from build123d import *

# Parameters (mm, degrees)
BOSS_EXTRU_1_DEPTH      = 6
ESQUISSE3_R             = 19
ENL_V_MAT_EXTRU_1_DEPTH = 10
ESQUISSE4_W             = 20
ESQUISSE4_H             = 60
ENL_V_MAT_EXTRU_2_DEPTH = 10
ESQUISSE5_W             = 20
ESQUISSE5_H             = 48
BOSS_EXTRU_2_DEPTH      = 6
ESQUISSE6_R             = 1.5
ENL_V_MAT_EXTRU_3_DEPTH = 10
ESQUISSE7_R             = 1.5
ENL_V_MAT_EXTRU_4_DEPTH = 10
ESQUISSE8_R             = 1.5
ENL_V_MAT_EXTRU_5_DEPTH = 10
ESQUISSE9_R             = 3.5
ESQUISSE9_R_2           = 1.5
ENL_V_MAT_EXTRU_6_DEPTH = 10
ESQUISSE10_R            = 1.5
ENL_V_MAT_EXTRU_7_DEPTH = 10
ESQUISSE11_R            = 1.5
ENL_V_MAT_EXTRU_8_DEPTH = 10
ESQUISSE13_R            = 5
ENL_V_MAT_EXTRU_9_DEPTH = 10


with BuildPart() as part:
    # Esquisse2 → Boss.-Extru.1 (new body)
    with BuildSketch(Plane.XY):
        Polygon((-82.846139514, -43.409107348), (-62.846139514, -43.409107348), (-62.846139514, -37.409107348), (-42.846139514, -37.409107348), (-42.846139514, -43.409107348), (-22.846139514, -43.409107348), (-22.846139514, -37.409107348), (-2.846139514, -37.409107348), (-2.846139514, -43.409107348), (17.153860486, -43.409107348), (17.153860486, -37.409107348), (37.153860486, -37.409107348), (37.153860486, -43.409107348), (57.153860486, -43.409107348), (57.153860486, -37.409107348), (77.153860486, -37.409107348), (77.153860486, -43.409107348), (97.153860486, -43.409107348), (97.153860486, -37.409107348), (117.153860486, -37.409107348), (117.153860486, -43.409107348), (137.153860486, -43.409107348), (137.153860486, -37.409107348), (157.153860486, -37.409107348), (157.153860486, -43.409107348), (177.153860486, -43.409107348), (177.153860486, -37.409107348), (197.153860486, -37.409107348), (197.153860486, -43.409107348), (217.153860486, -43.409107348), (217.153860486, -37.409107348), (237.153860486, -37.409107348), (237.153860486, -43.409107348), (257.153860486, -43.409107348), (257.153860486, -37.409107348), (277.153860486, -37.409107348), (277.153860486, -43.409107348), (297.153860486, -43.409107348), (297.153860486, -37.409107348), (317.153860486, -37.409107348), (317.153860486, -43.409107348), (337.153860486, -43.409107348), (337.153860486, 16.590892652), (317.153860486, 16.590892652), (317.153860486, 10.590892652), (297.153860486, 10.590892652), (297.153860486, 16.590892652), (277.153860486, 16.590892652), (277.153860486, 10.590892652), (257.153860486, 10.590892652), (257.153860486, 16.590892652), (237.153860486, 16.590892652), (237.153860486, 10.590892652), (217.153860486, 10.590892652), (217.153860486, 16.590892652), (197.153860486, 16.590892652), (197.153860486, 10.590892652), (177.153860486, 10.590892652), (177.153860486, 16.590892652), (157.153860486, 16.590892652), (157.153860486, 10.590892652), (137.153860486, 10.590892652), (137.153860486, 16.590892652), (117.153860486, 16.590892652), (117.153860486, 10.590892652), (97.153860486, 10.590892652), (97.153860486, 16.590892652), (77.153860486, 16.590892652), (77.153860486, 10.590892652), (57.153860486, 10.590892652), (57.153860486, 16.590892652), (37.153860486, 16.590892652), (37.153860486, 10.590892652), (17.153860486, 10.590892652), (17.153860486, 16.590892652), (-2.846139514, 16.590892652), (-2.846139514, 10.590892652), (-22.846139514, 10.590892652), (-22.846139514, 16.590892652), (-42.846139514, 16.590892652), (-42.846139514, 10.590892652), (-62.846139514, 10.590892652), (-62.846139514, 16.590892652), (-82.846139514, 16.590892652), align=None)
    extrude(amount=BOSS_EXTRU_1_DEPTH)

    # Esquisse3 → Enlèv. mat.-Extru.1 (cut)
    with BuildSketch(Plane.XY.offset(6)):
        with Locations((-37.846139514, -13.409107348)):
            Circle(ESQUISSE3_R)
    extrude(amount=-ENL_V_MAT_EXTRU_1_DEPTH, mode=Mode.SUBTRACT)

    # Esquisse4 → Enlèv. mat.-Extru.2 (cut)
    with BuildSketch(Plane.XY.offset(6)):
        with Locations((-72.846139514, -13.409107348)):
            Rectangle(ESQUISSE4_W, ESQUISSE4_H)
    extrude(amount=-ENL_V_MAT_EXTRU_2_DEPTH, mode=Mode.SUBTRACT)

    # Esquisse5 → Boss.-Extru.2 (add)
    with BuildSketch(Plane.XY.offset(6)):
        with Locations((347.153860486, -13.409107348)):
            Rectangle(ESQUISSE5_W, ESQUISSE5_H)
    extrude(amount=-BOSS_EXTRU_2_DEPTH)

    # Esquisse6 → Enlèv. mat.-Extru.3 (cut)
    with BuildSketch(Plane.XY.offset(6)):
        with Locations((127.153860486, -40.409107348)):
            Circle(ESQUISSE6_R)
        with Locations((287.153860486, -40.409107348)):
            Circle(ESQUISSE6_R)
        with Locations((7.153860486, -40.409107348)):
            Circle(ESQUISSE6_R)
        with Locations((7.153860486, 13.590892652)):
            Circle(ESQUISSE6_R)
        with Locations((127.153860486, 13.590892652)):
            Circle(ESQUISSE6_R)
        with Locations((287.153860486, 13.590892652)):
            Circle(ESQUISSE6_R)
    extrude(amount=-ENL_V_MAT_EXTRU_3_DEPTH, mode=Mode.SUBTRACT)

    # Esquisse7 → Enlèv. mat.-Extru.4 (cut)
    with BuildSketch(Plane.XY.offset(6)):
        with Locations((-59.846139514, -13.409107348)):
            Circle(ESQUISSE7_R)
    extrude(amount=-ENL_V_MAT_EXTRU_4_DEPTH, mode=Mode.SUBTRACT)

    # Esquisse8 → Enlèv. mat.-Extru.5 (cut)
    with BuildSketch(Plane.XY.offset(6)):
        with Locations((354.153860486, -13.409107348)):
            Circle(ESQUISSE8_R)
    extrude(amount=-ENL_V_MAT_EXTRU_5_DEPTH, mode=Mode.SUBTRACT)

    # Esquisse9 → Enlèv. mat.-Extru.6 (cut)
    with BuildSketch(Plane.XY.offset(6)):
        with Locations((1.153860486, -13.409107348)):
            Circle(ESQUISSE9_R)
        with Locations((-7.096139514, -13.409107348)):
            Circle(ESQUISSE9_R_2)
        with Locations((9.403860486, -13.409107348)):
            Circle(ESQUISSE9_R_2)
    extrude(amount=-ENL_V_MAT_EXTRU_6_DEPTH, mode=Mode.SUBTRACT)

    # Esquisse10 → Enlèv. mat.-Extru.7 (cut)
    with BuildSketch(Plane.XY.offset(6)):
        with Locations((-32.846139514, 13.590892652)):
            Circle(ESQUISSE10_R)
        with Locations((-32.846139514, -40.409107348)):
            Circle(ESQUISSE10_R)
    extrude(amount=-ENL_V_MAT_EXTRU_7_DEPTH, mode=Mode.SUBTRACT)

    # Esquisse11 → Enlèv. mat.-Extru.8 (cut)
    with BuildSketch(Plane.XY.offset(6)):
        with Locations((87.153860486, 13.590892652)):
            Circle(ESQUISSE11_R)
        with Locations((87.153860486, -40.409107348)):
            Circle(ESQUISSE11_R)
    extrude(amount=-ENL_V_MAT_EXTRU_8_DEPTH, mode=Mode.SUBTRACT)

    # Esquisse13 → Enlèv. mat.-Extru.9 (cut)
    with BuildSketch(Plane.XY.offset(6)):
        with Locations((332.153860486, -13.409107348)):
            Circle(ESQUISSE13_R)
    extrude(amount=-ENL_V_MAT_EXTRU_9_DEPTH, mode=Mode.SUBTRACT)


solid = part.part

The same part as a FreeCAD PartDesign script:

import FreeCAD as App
import Part
import Sketcher
from FreeCAD import Vector

doc = App.newDocument("Part")
body = doc.addObject("PartDesign::Body", "Body")

sketch1 = doc.addObject("Sketcher::SketchObject", "Sketch")
body.addObject(sketch1)
sketch1.AttachmentSupport = (doc.XY_Plane, [""])
sketch1.MapMode = "FlatFace"
sketch1.addGeometry([
    Part.LineSegment(Vector(-82.84614, -43.409107, 0), Vector(-62.84614, -43.409107, 0)),
    Part.LineSegment(Vector(-62.84614, -43.409107, 0), Vector(-62.84614, -37.409107, 0)),
    Part.LineSegment(Vector(-62.84614, -37.409107, 0), Vector(-42.84614, -37.409107, 0)),
    Part.LineSegment(Vector(-42.84614, -37.409107, 0), Vector(-42.84614, -43.409107, 0)),
    Part.LineSegment(Vector(-42.84614, -43.409107, 0), Vector(-22.84614, -43.409107, 0)),
    Part.LineSegment(Vector(-22.84614, -43.409107, 0), Vector(-22.84614, -37.409107, 0)),
    Part.LineSegment(Vector(-22.84614, -37.409107, 0), Vector(-2.84614, -37.409107, 0)),
    Part.LineSegment(Vector(-2.84614, -37.409107, 0), Vector(-2.84614, -43.409107, 0)),
    Part.LineSegment(Vector(-2.84614, -43.409107, 0), Vector(17.15386, -43.409107, 0)),
    Part.LineSegment(Vector(17.15386, -43.409107, 0), Vector(17.15386, -37.409107, 0)),
    Part.LineSegment(Vector(17.15386, -37.409107, 0), Vector(37.15386, -37.409107, 0)),
    Part.LineSegment(Vector(37.15386, -37.409107, 0), Vector(37.15386, -43.409107, 0)),
    Part.LineSegment(Vector(37.15386, -43.409107, 0), Vector(57.15386, -43.409107, 0)),
    Part.LineSegment(Vector(57.15386, -43.409107, 0), Vector(57.15386, -37.409107, 0)),
    Part.LineSegment(Vector(57.15386, -37.409107, 0), Vector(77.15386, -37.409107, 0)),
    Part.LineSegment(Vector(77.15386, -37.409107, 0), Vector(77.15386, -43.409107, 0)),
    Part.LineSegment(Vector(77.15386, -43.409107, 0), Vector(97.15386, -43.409107, 0)),
    Part.LineSegment(Vector(97.15386, -43.409107, 0), Vector(97.15386, -37.409107, 0)),
    Part.LineSegment(Vector(97.15386, -37.409107, 0), Vector(117.15386, -37.409107, 0)),
    Part.LineSegment(Vector(117.15386, -37.409107, 0), Vector(117.15386, -43.409107, 0)),
    Part.LineSegment(Vector(117.15386, -43.409107, 0), Vector(137.15386, -43.409107, 0)),
    Part.LineSegment(Vector(137.15386, -43.409107, 0), Vector(137.15386, -37.409107, 0)),
    Part.LineSegment(Vector(137.15386, -37.409107, 0), Vector(157.15386, -37.409107, 0)),
    Part.LineSegment(Vector(157.15386, -37.409107, 0), Vector(157.15386, -43.409107, 0)),
    Part.LineSegment(Vector(157.15386, -43.409107, 0), Vector(177.15386, -43.409107, 0)),
    Part.LineSegment(Vector(177.15386, -43.409107, 0), Vector(177.15386, -37.409107, 0)),
    Part.LineSegment(Vector(177.15386, -37.409107, 0), Vector(197.15386, -37.409107, 0)),
    Part.LineSegment(Vector(197.15386, -37.409107, 0), Vector(197.15386, -43.409107, 0)),
    Part.LineSegment(Vector(197.15386, -43.409107, 0), Vector(217.15386, -43.409107, 0)),
    Part.LineSegment(Vector(217.15386, -43.409107, 0), Vector(217.15386, -37.409107, 0)),
    Part.LineSegment(Vector(217.15386, -37.409107, 0), Vector(237.15386, -37.409107, 0)),
    Part.LineSegment(Vector(237.15386, -37.409107, 0), Vector(237.15386, -43.409107, 0)),
    Part.LineSegment(Vector(237.15386, -43.409107, 0), Vector(257.15386, -43.409107, 0)),
    Part.LineSegment(Vector(257.15386, -43.409107, 0), Vector(257.15386, -37.409107, 0)),
    Part.LineSegment(Vector(257.15386, -37.409107, 0), Vector(277.15386, -37.409107, 0)),
    Part.LineSegment(Vector(277.15386, -37.409107, 0), Vector(277.15386, -43.409107, 0)),
    Part.LineSegment(Vector(277.15386, -43.409107, 0), Vector(297.15386, -43.409107, 0)),
    Part.LineSegment(Vector(297.15386, -43.409107, 0), Vector(297.15386, -37.409107, 0)),
    Part.LineSegment(Vector(297.15386, -37.409107, 0), Vector(317.15386, -37.409107, 0)),
    Part.LineSegment(Vector(317.15386, -37.409107, 0), Vector(317.15386, -43.409107, 0)),
    Part.LineSegment(Vector(317.15386, -43.409107, 0), Vector(337.15386, -43.409107, 0)),
    Part.LineSegment(Vector(337.15386, -43.409107, 0), Vector(337.15386, 16.590893, 0)),
    Part.LineSegment(Vector(337.15386, 16.590893, 0), Vector(317.15386, 16.590893, 0)),
    Part.LineSegment(Vector(317.15386, 16.590893, 0), Vector(317.15386, 10.590893, 0)),
    Part.LineSegment(Vector(317.15386, 10.590893, 0), Vector(297.15386, 10.590893, 0)),
    Part.LineSegment(Vector(297.15386, 10.590893, 0), Vector(297.15386, 16.590893, 0)),
    Part.LineSegment(Vector(297.15386, 16.590893, 0), Vector(277.15386, 16.590893, 0)),
    Part.LineSegment(Vector(277.15386, 16.590893, 0), Vector(277.15386, 10.590893, 0)),
    Part.LineSegment(Vector(277.15386, 10.590893, 0), Vector(257.15386, 10.590893, 0)),
    Part.LineSegment(Vector(257.15386, 10.590893, 0), Vector(257.15386, 16.590893, 0)),
    Part.LineSegment(Vector(257.15386, 16.590893, 0), Vector(237.15386, 16.590893, 0)),
    Part.LineSegment(Vector(237.15386, 16.590893, 0), Vector(237.15386, 10.590893, 0)),
    Part.LineSegment(Vector(237.15386, 10.590893, 0), Vector(217.15386, 10.590893, 0)),
    Part.LineSegment(Vector(217.15386, 10.590893, 0), Vector(217.15386, 16.590893, 0)),
    Part.LineSegment(Vector(217.15386, 16.590893, 0), Vector(197.15386, 16.590893, 0)),
    Part.LineSegment(Vector(197.15386, 16.590893, 0), Vector(197.15386, 10.590893, 0)),
    Part.LineSegment(Vector(197.15386, 10.590893, 0), Vector(177.15386, 10.590893, 0)),
    Part.LineSegment(Vector(177.15386, 10.590893, 0), Vector(177.15386, 16.590893, 0)),
    Part.LineSegment(Vector(177.15386, 16.590893, 0), Vector(157.15386, 16.590893, 0)),
    Part.LineSegment(Vector(157.15386, 16.590893, 0), Vector(157.15386, 10.590893, 0)),
    Part.LineSegment(Vector(157.15386, 10.590893, 0), Vector(137.15386, 10.590893, 0)),
    Part.LineSegment(Vector(137.15386, 10.590893, 0), Vector(137.15386, 16.590893, 0)),
    Part.LineSegment(Vector(137.15386, 16.590893, 0), Vector(117.15386, 16.590893, 0)),
    Part.LineSegment(Vector(117.15386, 16.590893, 0), Vector(117.15386, 10.590893, 0)),
    Part.LineSegment(Vector(117.15386, 10.590893, 0), Vector(97.15386, 10.590893, 0)),
    Part.LineSegment(Vector(97.15386, 10.590893, 0), Vector(97.15386, 16.590893, 0)),
    Part.LineSegment(Vector(97.15386, 16.590893, 0), Vector(77.15386, 16.590893, 0)),
    Part.LineSegment(Vector(77.15386, 16.590893, 0), Vector(77.15386, 10.590893, 0)),
    Part.LineSegment(Vector(77.15386, 10.590893, 0), Vector(57.15386, 10.590893, 0)),
    Part.LineSegment(Vector(57.15386, 10.590893, 0), Vector(57.15386, 16.590893, 0)),
    Part.LineSegment(Vector(57.15386, 16.590893, 0), Vector(37.15386, 16.590893, 0)),
    Part.LineSegment(Vector(37.15386, 16.590893, 0), Vector(37.15386, 10.590893, 0)),
    Part.LineSegment(Vector(37.15386, 10.590893, 0), Vector(17.15386, 10.590893, 0)),
    Part.LineSegment(Vector(17.15386, 10.590893, 0), Vector(17.15386, 16.590893, 0)),
    Part.LineSegment(Vector(17.15386, 16.590893, 0), Vector(-2.84614, 16.590893, 0)),
    Part.LineSegment(Vector(-2.84614, 16.590893, 0), Vector(-2.84614, 10.590893, 0)),
    Part.LineSegment(Vector(-2.84614, 10.590893, 0), Vector(-22.84614, 10.590893, 0)),
    Part.LineSegment(Vector(-22.84614, 10.590893, 0), Vector(-22.84614, 16.590893, 0)),
    Part.LineSegment(Vector(-22.84614, 16.590893, 0), Vector(-42.84614, 16.590893, 0)),
    Part.LineSegment(Vector(-42.84614, 16.590893, 0), Vector(-42.84614, 10.590893, 0)),
    Part.LineSegment(Vector(-42.84614, 10.590893, 0), Vector(-62.84614, 10.590893, 0)),
    Part.LineSegment(Vector(-62.84614, 10.590893, 0), Vector(-62.84614, 16.590893, 0)),
    Part.LineSegment(Vector(-62.84614, 16.590893, 0), Vector(-82.84614, 16.590893, 0)),
    Part.LineSegment(Vector(-82.84614, 16.590893, 0), Vector(-82.84614, -43.409107, 0)),
], False)
sketch1.addConstraint([
    Sketcher.Constraint("Coincident", 0, 2, 1, 1),
    Sketcher.Constraint("Coincident", 1, 2, 2, 1),
    Sketcher.Constraint("Coincident", 2, 2, 3, 1),
    Sketcher.Constraint("Coincident", 3, 2, 4, 1),
    Sketcher.Constraint("Coincident", 4, 2, 5, 1),
    Sketcher.Constraint("Coincident", 5, 2, 6, 1),
    Sketcher.Constraint("Coincident", 6, 2, 7, 1),
    Sketcher.Constraint("Coincident", 7, 2, 8, 1),
    Sketcher.Constraint("Coincident", 8, 2, 9, 1),
    Sketcher.Constraint("Coincident", 9, 2, 10, 1),
    Sketcher.Constraint("Coincident", 10, 2, 11, 1),
    Sketcher.Constraint("Coincident", 11, 2, 12, 1),
    Sketcher.Constraint("Coincident", 12, 2, 13, 1),
    Sketcher.Constraint("Coincident", 13, 2, 14, 1),
    Sketcher.Constraint("Coincident", 14, 2, 15, 1),
    Sketcher.Constraint("Coincident", 15, 2, 16, 1),
    Sketcher.Constraint("Coincident", 16, 2, 17, 1),
    Sketcher.Constraint("Coincident", 17, 2, 18, 1),
    Sketcher.Constraint("Coincident", 18, 2, 19, 1),
    Sketcher.Constraint("Coincident", 19, 2, 20, 1),
    Sketcher.Constraint("Coincident", 20, 2, 21, 1),
    Sketcher.Constraint("Coincident", 21, 2, 22, 1),
    Sketcher.Constraint("Coincident", 22, 2, 23, 1),
    Sketcher.Constraint("Coincident", 23, 2, 24, 1),
    Sketcher.Constraint("Coincident", 24, 2, 25, 1),
    Sketcher.Constraint("Coincident", 25, 2, 26, 1),
    Sketcher.Constraint("Coincident", 26, 2, 27, 1),
    Sketcher.Constraint("Coincident", 27, 2, 28, 1),
    Sketcher.Constraint("Coincident", 28, 2, 29, 1),
    Sketcher.Constraint("Coincident", 29, 2, 30, 1),
    Sketcher.Constraint("Coincident", 30, 2, 31, 1),
    Sketcher.Constraint("Coincident", 31, 2, 32, 1),
    Sketcher.Constraint("Coincident", 32, 2, 33, 1),
    Sketcher.Constraint("Coincident", 33, 2, 34, 1),
    Sketcher.Constraint("Coincident", 34, 2, 35, 1),
    Sketcher.Constraint("Coincident", 35, 2, 36, 1),
    Sketcher.Constraint("Coincident", 36, 2, 37, 1),
    Sketcher.Constraint("Coincident", 37, 2, 38, 1),
    Sketcher.Constraint("Coincident", 38, 2, 39, 1),
    Sketcher.Constraint("Coincident", 39, 2, 40, 1),
    Sketcher.Constraint("Coincident", 40, 2, 41, 1),
    Sketcher.Constraint("Coincident", 41, 2, 42, 1),
    Sketcher.Constraint("Coincident", 42, 2, 43, 1),
    Sketcher.Constraint("Coincident", 43, 2, 44, 1),
    Sketcher.Constraint("Coincident", 44, 2, 45, 1),
    Sketcher.Constraint("Coincident", 45, 2, 46, 1),
    Sketcher.Constraint("Coincident", 46, 2, 47, 1),
    Sketcher.Constraint("Coincident", 47, 2, 48, 1),
    Sketcher.Constraint("Coincident", 48, 2, 49, 1),
    Sketcher.Constraint("Coincident", 49, 2, 50, 1),
    Sketcher.Constraint("Coincident", 50, 2, 51, 1),
    Sketcher.Constraint("Coincident", 51, 2, 52, 1),
    Sketcher.Constraint("Coincident", 52, 2, 53, 1),
    Sketcher.Constraint("Coincident", 53, 2, 54, 1),
    Sketcher.Constraint("Coincident", 54, 2, 55, 1),
    Sketcher.Constraint("Coincident", 55, 2, 56, 1),
    Sketcher.Constraint("Coincident", 56, 2, 57, 1),
    Sketcher.Constraint("Coincident", 57, 2, 58, 1),
    Sketcher.Constraint("Coincident", 58, 2, 59, 1),
    Sketcher.Constraint("Coincident", 59, 2, 60, 1),
    Sketcher.Constraint("Coincident", 60, 2, 61, 1),
    Sketcher.Constraint("Coincident", 61, 2, 62, 1),
    Sketcher.Constraint("Coincident", 62, 2, 63, 1),
    Sketcher.Constraint("Coincident", 63, 2, 64, 1),
    Sketcher.Constraint("Coincident", 64, 2, 65, 1),
    Sketcher.Constraint("Coincident", 65, 2, 66, 1),
    Sketcher.Constraint("Coincident", 66, 2, 67, 1),
    Sketcher.Constraint("Coincident", 67, 2, 68, 1),
    Sketcher.Constraint("Coincident", 68, 2, 69, 1),
    Sketcher.Constraint("Coincident", 69, 2, 70, 1),
    Sketcher.Constraint("Coincident", 70, 2, 71, 1),
    Sketcher.Constraint("Coincident", 71, 2, 72, 1),
    Sketcher.Constraint("Coincident", 72, 2, 73, 1),
    Sketcher.Constraint("Coincident", 73, 2, 74, 1),
    Sketcher.Constraint("Coincident", 74, 2, 75, 1),
    Sketcher.Constraint("Coincident", 75, 2, 76, 1),
    Sketcher.Constraint("Coincident", 76, 2, 77, 1),
    Sketcher.Constraint("Coincident", 77, 2, 78, 1),
    Sketcher.Constraint("Coincident", 78, 2, 79, 1),
    Sketcher.Constraint("Coincident", 79, 2, 80, 1),
    Sketcher.Constraint("Coincident", 80, 2, 81, 1),
    Sketcher.Constraint("Coincident", 81, 2, 82, 1),
    Sketcher.Constraint("Coincident", 82, 2, 83, 1),
    Sketcher.Constraint("Coincident", 83, 2, 0, 1),
    Sketcher.Constraint("Horizontal", 0),
    Sketcher.Constraint("Vertical", 1),
    Sketcher.Constraint("Horizontal", 2),
    Sketcher.Constraint("Vertical", 3),
    Sketcher.Constraint("Horizontal", 4),
    Sketcher.Constraint("Vertical", 5),
    Sketcher.Constraint("Horizontal", 6),
    Sketcher.Constraint("Vertical", 7),
    Sketcher.Constraint("Horizontal", 8),
    Sketcher.Constraint("Vertical", 9),
    Sketcher.Constraint("Horizontal", 10),
    Sketcher.Constraint("Vertical", 11),
    Sketcher.Constraint("Horizontal", 12),
    Sketcher.Constraint("Vertical", 13),
    Sketcher.Constraint("Horizontal", 14),
    Sketcher.Constraint("Vertical", 15),
    Sketcher.Constraint("Horizontal", 16),
    Sketcher.Constraint("Vertical", 17),
    Sketcher.Constraint("Horizontal", 18),
    Sketcher.Constraint("Vertical", 19),
    Sketcher.Constraint("Horizontal", 20),
    Sketcher.Constraint("Vertical", 21),
    Sketcher.Constraint("Horizontal", 22),
    Sketcher.Constraint("Vertical", 23),
    Sketcher.Constraint("Horizontal", 24),
    Sketcher.Constraint("Vertical", 25),
    Sketcher.Constraint("Horizontal", 26),
    Sketcher.Constraint("Vertical", 27),
    Sketcher.Constraint("Horizontal", 28),
    Sketcher.Constraint("Vertical", 29),
    Sketcher.Constraint("Horizontal", 30),
    Sketcher.Constraint("Vertical", 31),
    Sketcher.Constraint("Horizontal", 32),
    Sketcher.Constraint("Vertical", 33),
    Sketcher.Constraint("Horizontal", 34),
    Sketcher.Constraint("Vertical", 35),
    Sketcher.Constraint("Horizontal", 36),
    Sketcher.Constraint("Vertical", 37),
    Sketcher.Constraint("Horizontal", 38),
    Sketcher.Constraint("Vertical", 39),
    Sketcher.Constraint("Horizontal", 40),
    Sketcher.Constraint("Vertical", 41),
    Sketcher.Constraint("Horizontal", 42),
    Sketcher.Constraint("Vertical", 43),
    Sketcher.Constraint("Horizontal", 44),
    Sketcher.Constraint("Vertical", 45),
    Sketcher.Constraint("Horizontal", 46),
    Sketcher.Constraint("Vertical", 47),
    Sketcher.Constraint("Horizontal", 48),
    Sketcher.Constraint("Vertical", 49),
    Sketcher.Constraint("Horizontal", 50),
    Sketcher.Constraint("Vertical", 51),
    Sketcher.Constraint("Horizontal", 52),
    Sketcher.Constraint("Vertical", 53),
    Sketcher.Constraint("Horizontal", 54),
    Sketcher.Constraint("Vertical", 55),
    Sketcher.Constraint("Horizontal", 56),
    Sketcher.Constraint("Vertical", 57),
    Sketcher.Constraint("Horizontal", 58),
    Sketcher.Constraint("Vertical", 59),
    Sketcher.Constraint("Horizontal", 60),
    Sketcher.Constraint("Vertical", 61),
    Sketcher.Constraint("Horizontal", 62),
    Sketcher.Constraint("Vertical", 63),
    Sketcher.Constraint("Horizontal", 64),
    Sketcher.Constraint("Vertical", 65),
    Sketcher.Constraint("Horizontal", 66),
    Sketcher.Constraint("Vertical", 67),
    Sketcher.Constraint("Horizontal", 68),
    Sketcher.Constraint("Vertical", 69),
    Sketcher.Constraint("Horizontal", 70),
    Sketcher.Constraint("Vertical", 71),
    Sketcher.Constraint("Horizontal", 72),
    Sketcher.Constraint("Vertical", 73),
    Sketcher.Constraint("Horizontal", 74),
    Sketcher.Constraint("Vertical", 75),
    Sketcher.Constraint("Horizontal", 76),
    Sketcher.Constraint("Vertical", 77),
    Sketcher.Constraint("Horizontal", 78),
    Sketcher.Constraint("Vertical", 79),
    Sketcher.Constraint("Horizontal", 80),
    Sketcher.Constraint("Vertical", 81),
    Sketcher.Constraint("Horizontal", 82),
    Sketcher.Constraint("Vertical", 83),
    Sketcher.Constraint("Horizontal", 0, 2, 3, 2),
    Sketcher.Constraint("Horizontal", 2, 2, 5, 2),
    Sketcher.Constraint("Horizontal", 4, 2, 7, 2),
    Sketcher.Constraint("Horizontal", 6, 2, 9, 2),
    Sketcher.Constraint("Horizontal", 8, 2, 11, 2),
    Sketcher.Constraint("Horizontal", 10, 2, 13, 2),
    Sketcher.Constraint("Horizontal", 12, 2, 15, 2),
    Sketcher.Constraint("Horizontal", 14, 2, 17, 2),
    Sketcher.Constraint("Horizontal", 16, 2, 19, 2),
    Sketcher.Constraint("Horizontal", 18, 2, 21, 2),
    Sketcher.Constraint("Horizontal", 20, 2, 23, 2),
    Sketcher.Constraint("Horizontal", 22, 2, 25, 2),
    Sketcher.Constraint("Horizontal", 24, 2, 27, 2),
    Sketcher.Constraint("Horizontal", 26, 2, 29, 2),
    Sketcher.Constraint("Horizontal", 28, 2, 31, 2),
    Sketcher.Constraint("Horizontal", 30, 2, 33, 2),
    Sketcher.Constraint("Horizontal", 32, 2, 35, 2),
    Sketcher.Constraint("Horizontal", 34, 2, 37, 2),
    Sketcher.Constraint("Horizontal", 36, 2, 39, 2),
    Sketcher.Constraint("Horizontal", 42, 2, 45, 2),
    Sketcher.Constraint("Horizontal", 44, 2, 47, 2),
    Sketcher.Constraint("Horizontal", 46, 2, 49, 2),
    Sketcher.Constraint("Horizontal", 48, 2, 51, 2),
    Sketcher.Constraint("Horizontal", 50, 2, 53, 2),
    Sketcher.Constraint("Horizontal", 52, 2, 55, 2),
    Sketcher.Constraint("Horizontal", 54, 2, 57, 2),
    Sketcher.Constraint("Horizontal", 56, 2, 59, 2),
    Sketcher.Constraint("Horizontal", 58, 2, 61, 2),
    Sketcher.Constraint("Horizontal", 60, 2, 63, 2),
    Sketcher.Constraint("Horizontal", 62, 2, 65, 2),
    Sketcher.Constraint("Horizontal", 64, 2, 67, 2),
    Sketcher.Constraint("Horizontal", 66, 2, 69, 2),
    Sketcher.Constraint("Horizontal", 68, 2, 71, 2),
    Sketcher.Constraint("Horizontal", 70, 2, 73, 2),
    Sketcher.Constraint("Horizontal", 72, 2, 75, 2),
    Sketcher.Constraint("Horizontal", 74, 2, 77, 2),
    Sketcher.Constraint("Horizontal", 76, 2, 79, 2),
    Sketcher.Constraint("Horizontal", 78, 2, 81, 2),
    Sketcher.Constraint("Vertical", 39, 2, 42, 2),
    Sketcher.Constraint("Vertical", 37, 2, 44, 2),
    Sketcher.Constraint("Vertical", 35, 2, 46, 2),
    Sketcher.Constraint("Vertical", 33, 2, 48, 2),
    Sketcher.Constraint("Vertical", 31, 2, 50, 2),
    Sketcher.Constraint("Vertical", 29, 2, 52, 2),
    Sketcher.Constraint("Vertical", 27, 2, 54, 2),
    Sketcher.Constraint("Vertical", 25, 2, 56, 2),
    Sketcher.Constraint("Vertical", 23, 2, 58, 2),
    Sketcher.Constraint("Vertical", 21, 2, 60, 2),
    Sketcher.Constraint("Vertical", 19, 2, 62, 2),
    Sketcher.Constraint("Vertical", 17, 2, 64, 2),
    Sketcher.Constraint("Vertical", 15, 2, 66, 2),
    Sketcher.Constraint("Vertical", 13, 2, 68, 2),
    Sketcher.Constraint("Vertical", 11, 2, 70, 2),
    Sketcher.Constraint("Vertical", 9, 2, 72, 2),
    Sketcher.Constraint("Vertical", 7, 2, 74, 2),
    Sketcher.Constraint("Vertical", 5, 2, 76, 2),
    Sketcher.Constraint("Vertical", 3, 2, 78, 2),
    Sketcher.Constraint("Vertical", 1, 2, 80, 2),
    Sketcher.Constraint("Equal", 0, 2),
    Sketcher.Constraint("Equal", 2, 4),
    Sketcher.Constraint("Equal", 4, 6),
    Sketcher.Constraint("Equal", 6, 8),
    Sketcher.Constraint("Equal", 8, 10),
    Sketcher.Constraint("Equal", 10, 12),
    Sketcher.Constraint("Equal", 12, 14),
    Sketcher.Constraint("Equal", 14, 16),
    Sketcher.Constraint("Equal", 16, 18),
    Sketcher.Constraint("Equal", 18, 20),
    Sketcher.Constraint("Equal", 20, 22),
    Sketcher.Constraint("Equal", 22, 24),
    Sketcher.Constraint("Equal", 24, 26),
    Sketcher.Constraint("Equal", 26, 28),
    Sketcher.Constraint("Equal", 28, 30),
    Sketcher.Constraint("Equal", 30, 32),
    Sketcher.Constraint("Equal", 32, 34),
    Sketcher.Constraint("Equal", 34, 36),
    Sketcher.Constraint("Equal", 36, 38),
    Sketcher.Constraint("Equal", 38, 40),
    Sketcher.Constraint("Equal", 39, 43),
    Sketcher.Constraint("DistanceX", 0, 1, 0, 2, 20.0),
    Sketcher.Constraint("DistanceY", 1, 1, 1, 2, 6.0),
    Sketcher.Constraint("DistanceY", 41, 1, 41, 2, 60.0),
    Sketcher.Constraint("DistanceX", 0, 2, -1, 1, 62.84614),
    Sketcher.Constraint("DistanceY", 0, 2, -1, 1, 43.409107),
])
pad1 = doc.addObject("PartDesign::Pad", "Pad")
body.addObject(pad1)
pad1.Profile = sketch1
pad1.Length = 6

sketch2 = doc.addObject("Sketcher::SketchObject", "Sketch001")
body.addObject(sketch2)
sketch2.AttachmentSupport = (doc.XY_Plane, [""])
sketch2.MapMode = "FlatFace"
sketch2.AttachmentOffset = App.Placement(Vector(0, 0, 6), App.Rotation())
sketch2.addGeometry(Part.Circle(Vector(-37.84614, -13.409107, 0), Vector(0, 0, 1), 19), False)
sketch2.addConstraint([
    Sketcher.Constraint("Diameter", 0, 38.0),
    Sketcher.Constraint("DistanceX", 0, 3, -1, 1, 37.84614),
    Sketcher.Constraint("DistanceY", 0, 3, -1, 1, 13.409107),
])
pocket1 = doc.addObject("PartDesign::Pocket", "Pocket")
body.addObject(pocket1)
pocket1.Profile = sketch2
pocket1.Length = 10

sketch3 = doc.addObject("Sketcher::SketchObject", "Sketch002")
body.addObject(sketch3)
sketch3.AttachmentSupport = (doc.XY_Plane, [""])
sketch3.MapMode = "FlatFace"
sketch3.AttachmentOffset = App.Placement(Vector(0, 0, 6), App.Rotation())
sketch3.addGeometry([
    Part.LineSegment(Vector(-82.84614, 16.590893, 0), Vector(-82.84614, -43.409107, 0)),
    Part.LineSegment(Vector(-82.84614, -43.409107, 0), Vector(-62.84614, -43.409107, 0)),
    Part.LineSegment(Vector(-62.84614, -43.409107, 0), Vector(-62.84614, 16.590893, 0)),
    Part.LineSegment(Vector(-62.84614, 16.590893, 0), Vector(-82.84614, 16.590893, 0)),
], False)
sketch3.addConstraint([
    Sketcher.Constraint("Coincident", 0, 2, 1, 1),
    Sketcher.Constraint("Coincident", 1, 2, 2, 1),
    Sketcher.Constraint("Coincident", 2, 2, 3, 1),
    Sketcher.Constraint("Coincident", 3, 2, 0, 1),
    Sketcher.Constraint("Vertical", 0),
    Sketcher.Constraint("Horizontal", 1),
    Sketcher.Constraint("Vertical", 2),
    Sketcher.Constraint("Horizontal", 3),
    Sketcher.Constraint("DistanceX", 1, 1, 1, 2, 20.0),
    Sketcher.Constraint("DistanceY", 0, 2, 0, 1, 60.0),
    Sketcher.Constraint("DistanceX", 0, 2, -1, 1, 82.84614),
    Sketcher.Constraint("DistanceY", 0, 2, -1, 1, 43.409107),
])
pocket2 = doc.addObject("PartDesign::Pocket", "Pocket001")
body.addObject(pocket2)
pocket2.Profile = sketch3
pocket2.Length = 10

sketch4 = doc.addObject("Sketcher::SketchObject", "Sketch003")
body.addObject(sketch4)
sketch4.AttachmentSupport = (doc.XY_Plane, [""])
sketch4.MapMode = "FlatFace"
sketch4.AttachmentOffset = App.Placement(Vector(0, 0, 6), App.Rotation())
sketch4.addGeometry([
    Part.LineSegment(Vector(337.15386, 10.590893, 0), Vector(337.15386, -37.409107, 0)),
    Part.LineSegment(Vector(337.15386, -37.409107, 0), Vector(357.15386, -37.409107, 0)),
    Part.LineSegment(Vector(357.15386, -37.409107, 0), Vector(357.15386, 10.590893, 0)),
    Part.LineSegment(Vector(357.15386, 10.590893, 0), Vector(337.15386, 10.590893, 0)),
], False)
sketch4.addConstraint([
    Sketcher.Constraint("Coincident", 0, 2, 1, 1),
    Sketcher.Constraint("Coincident", 1, 2, 2, 1),
    Sketcher.Constraint("Coincident", 2, 2, 3, 1),
    Sketcher.Constraint("Coincident", 3, 2, 0, 1),
    Sketcher.Constraint("Vertical", 0),
    Sketcher.Constraint("Horizontal", 1),
    Sketcher.Constraint("Vertical", 2),
    Sketcher.Constraint("Horizontal", 3),
    Sketcher.Constraint("DistanceX", 1, 1, 1, 2, 20.0),
    Sketcher.Constraint("DistanceY", 0, 2, 0, 1, 48.0),
    Sketcher.Constraint("DistanceX", -1, 1, 0, 2, 337.15386),
    Sketcher.Constraint("DistanceY", 0, 2, -1, 1, 37.409107),
])
pad2 = doc.addObject("PartDesign::Pad", "Pad001")
body.addObject(pad2)
pad2.Profile = sketch4
pad2.Length = 6
pad2.Reversed = True

sketch5 = doc.addObject("Sketcher::SketchObject", "Sketch004")
body.addObject(sketch5)
sketch5.AttachmentSupport = (doc.XY_Plane, [""])
sketch5.MapMode = "FlatFace"
sketch5.AttachmentOffset = App.Placement(Vector(0, 0, 6), App.Rotation())
sketch5.addGeometry([
    Part.Circle(Vector(127.15386, -40.409107, 0), Vector(0, 0, 1), 1.5),
    Part.Circle(Vector(287.15386, -40.409107, 0), Vector(0, 0, 1), 1.5),
    Part.Circle(Vector(7.15386, -40.409107, 0), Vector(0, 0, 1), 1.5),
    Part.Circle(Vector(7.15386, 13.590893, 0), Vector(0, 0, 1), 1.5),
    Part.Circle(Vector(127.15386, 13.590893, 0), Vector(0, 0, 1), 1.5),
    Part.Circle(Vector(287.15386, 13.590893, 0), Vector(0, 0, 1), 1.5),
], False)
sketch5.addConstraint([
    Sketcher.Constraint("Equal", 0, 1),
    Sketcher.Constraint("Equal", 1, 2),
    Sketcher.Constraint("Equal", 2, 3),
    Sketcher.Constraint("Equal", 3, 4),
    Sketcher.Constraint("Equal", 4, 5),
    Sketcher.Constraint("Horizontal", 0, 3, 1, 3),
    Sketcher.Constraint("Horizontal", 1, 3, 2, 3),
    Sketcher.Constraint("Horizontal", 3, 3, 4, 3),
    Sketcher.Constraint("Horizontal", 4, 3, 5, 3),
    Sketcher.Constraint("Vertical", 2, 3, 3, 3),
    Sketcher.Constraint("Vertical", 0, 3, 4, 3),
    Sketcher.Constraint("Vertical", 1, 3, 5, 3),
    Sketcher.Constraint("Diameter", 0, 3.0),
    Sketcher.Constraint("DistanceX", 0, 3, 1, 3, 160.0),
    Sketcher.Constraint("DistanceX", 2, 3, 0, 3, 120.0),
    Sketcher.Constraint("DistanceY", 2, 3, 3, 3, 54.0),
    Sketcher.Constraint("DistanceX", -1, 1, 0, 3, 127.15386),
    Sketcher.Constraint("DistanceY", 0, 3, -1, 1, 40.409107),
])
pocket3 = doc.addObject("PartDesign::Pocket", "Pocket002")
body.addObject(pocket3)
pocket3.Profile = sketch5
pocket3.Length = 10

sketch6 = doc.addObject("Sketcher::SketchObject", "Sketch005")
body.addObject(sketch6)
sketch6.AttachmentSupport = (doc.XY_Plane, [""])
sketch6.MapMode = "FlatFace"
sketch6.AttachmentOffset = App.Placement(Vector(0, 0, 6), App.Rotation())
sketch6.addGeometry(Part.Circle(Vector(-59.84614, -13.409107, 0), Vector(0, 0, 1), 1.5), False)
sketch6.addConstraint([
    Sketcher.Constraint("Diameter", 0, 3.0),
    Sketcher.Constraint("DistanceX", 0, 3, -1, 1, 59.84614),
    Sketcher.Constraint("DistanceY", 0, 3, -1, 1, 13.409107),
])
pocket4 = doc.addObject("PartDesign::Pocket", "Pocket003")
body.addObject(pocket4)
pocket4.Profile = sketch6
pocket4.Length = 10

sketch7 = doc.addObject("Sketcher::SketchObject", "Sketch006")
body.addObject(sketch7)
sketch7.AttachmentSupport = (doc.XY_Plane, [""])
sketch7.MapMode = "FlatFace"
sketch7.AttachmentOffset = App.Placement(Vector(0, 0, 6), App.Rotation())
sketch7.addGeometry(Part.Circle(Vector(354.15386, -13.409107, 0), Vector(0, 0, 1), 1.5), False)
sketch7.addConstraint([
    Sketcher.Constraint("Diameter", 0, 3.0),
    Sketcher.Constraint("DistanceX", -1, 1, 0, 3, 354.15386),
    Sketcher.Constraint("DistanceY", 0, 3, -1, 1, 13.409107),
])
pocket5 = doc.addObject("PartDesign::Pocket", "Pocket004")
body.addObject(pocket5)
pocket5.Profile = sketch7
pocket5.Length = 10

sketch8 = doc.addObject("Sketcher::SketchObject", "Sketch007")
body.addObject(sketch8)
sketch8.AttachmentSupport = (doc.XY_Plane, [""])
sketch8.MapMode = "FlatFace"
sketch8.AttachmentOffset = App.Placement(Vector(0, 0, 6), App.Rotation())
sketch8.addGeometry([
    Part.Circle(Vector(1.15386, -13.409107, 0), Vector(0, 0, 1), 3.5),
    Part.Circle(Vector(-7.09614, -13.409107, 0), Vector(0, 0, 1), 1.5),
    Part.Circle(Vector(9.40386, -13.409107, 0), Vector(0, 0, 1), 1.5),
], False)
sketch8.addConstraint([
    Sketcher.Constraint("Equal", 1, 2),
    Sketcher.Constraint("Horizontal", 0, 3, 1, 3),
    Sketcher.Constraint("Horizontal", 1, 3, 2, 3),
    Sketcher.Constraint("Diameter", 0, 7.0),
    Sketcher.Constraint("Diameter", 1, 3.0),
    Sketcher.Constraint("DistanceX", 1, 3, 2, 3, 16.5),
    Sketcher.Constraint("DistanceX", 1, 3, 0, 3, 8.25),
    Sketcher.Constraint("DistanceX", -1, 1, 0, 3, 1.15386),
    Sketcher.Constraint("DistanceY", 0, 3, -1, 1, 13.409107),
])
pocket6 = doc.addObject("PartDesign::Pocket", "Pocket005")
body.addObject(pocket6)
pocket6.Profile = sketch8
pocket6.Length = 10

sketch9 = doc.addObject("Sketcher::SketchObject", "Sketch008")
body.addObject(sketch9)
sketch9.AttachmentSupport = (doc.XY_Plane, [""])
sketch9.MapMode = "FlatFace"
sketch9.AttachmentOffset = App.Placement(Vector(0, 0, 6), App.Rotation())
sketch9.addGeometry([
    Part.Circle(Vector(-32.84614, 13.590893, 0), Vector(0, 0, 1), 1.5),
    Part.Circle(Vector(-32.84614, -40.409107, 0), Vector(0, 0, 1), 1.5),
], False)
sketch9.addConstraint([
    Sketcher.Constraint("Equal", 0, 1),
    Sketcher.Constraint("Vertical", 0, 3, 1, 3),
    Sketcher.Constraint("Diameter", 0, 3.0),
    Sketcher.Constraint("DistanceY", 1, 3, 0, 3, 54.0),
    Sketcher.Constraint("DistanceX", 0, 3, -1, 1, 32.84614),
    Sketcher.Constraint("DistanceY", -1, 1, 0, 3, 13.590893),
])
pocket7 = doc.addObject("PartDesign::Pocket", "Pocket006")
body.addObject(pocket7)
pocket7.Profile = sketch9
pocket7.Length = 10

sketch10 = doc.addObject("Sketcher::SketchObject", "Sketch009")
body.addObject(sketch10)
sketch10.AttachmentSupport = (doc.XY_Plane, [""])
sketch10.MapMode = "FlatFace"
sketch10.AttachmentOffset = App.Placement(Vector(0, 0, 6), App.Rotation())
sketch10.addGeometry([
    Part.Circle(Vector(87.15386, 13.590893, 0), Vector(0, 0, 1), 1.5),
    Part.Circle(Vector(87.15386, -40.409107, 0), Vector(0, 0, 1), 1.5),
], False)
sketch10.addConstraint([
    Sketcher.Constraint("Equal", 0, 1),
    Sketcher.Constraint("Vertical", 0, 3, 1, 3),
    Sketcher.Constraint("Diameter", 0, 3.0),
    Sketcher.Constraint("DistanceY", 1, 3, 0, 3, 54.0),
    Sketcher.Constraint("DistanceX", -1, 1, 0, 3, 87.15386),
    Sketcher.Constraint("DistanceY", -1, 1, 0, 3, 13.590893),
])
pocket8 = doc.addObject("PartDesign::Pocket", "Pocket007")
body.addObject(pocket8)
pocket8.Profile = sketch10
pocket8.Length = 10

sketch11 = doc.addObject("Sketcher::SketchObject", "Sketch010")
body.addObject(sketch11)
sketch11.AttachmentSupport = (doc.XY_Plane, [""])
sketch11.MapMode = "FlatFace"
sketch11.AttachmentOffset = App.Placement(Vector(0, 0, 6), App.Rotation())
sketch11.addGeometry(Part.Circle(Vector(332.15386, -13.409107, 0), Vector(0, 0, 1), 5), False)
sketch11.addConstraint([
    Sketcher.Constraint("Diameter", 0, 10.0),
    Sketcher.Constraint("DistanceX", -1, 1, 0, 3, 332.15386),
    Sketcher.Constraint("DistanceY", 0, 3, -1, 1, 13.409107),
])
pocket9 = doc.addObject("PartDesign::Pocket", "Pocket008")
body.addObject(pocket9)
pocket9.Profile = sketch11
pocket9.Length = 10

doc.recompute()
